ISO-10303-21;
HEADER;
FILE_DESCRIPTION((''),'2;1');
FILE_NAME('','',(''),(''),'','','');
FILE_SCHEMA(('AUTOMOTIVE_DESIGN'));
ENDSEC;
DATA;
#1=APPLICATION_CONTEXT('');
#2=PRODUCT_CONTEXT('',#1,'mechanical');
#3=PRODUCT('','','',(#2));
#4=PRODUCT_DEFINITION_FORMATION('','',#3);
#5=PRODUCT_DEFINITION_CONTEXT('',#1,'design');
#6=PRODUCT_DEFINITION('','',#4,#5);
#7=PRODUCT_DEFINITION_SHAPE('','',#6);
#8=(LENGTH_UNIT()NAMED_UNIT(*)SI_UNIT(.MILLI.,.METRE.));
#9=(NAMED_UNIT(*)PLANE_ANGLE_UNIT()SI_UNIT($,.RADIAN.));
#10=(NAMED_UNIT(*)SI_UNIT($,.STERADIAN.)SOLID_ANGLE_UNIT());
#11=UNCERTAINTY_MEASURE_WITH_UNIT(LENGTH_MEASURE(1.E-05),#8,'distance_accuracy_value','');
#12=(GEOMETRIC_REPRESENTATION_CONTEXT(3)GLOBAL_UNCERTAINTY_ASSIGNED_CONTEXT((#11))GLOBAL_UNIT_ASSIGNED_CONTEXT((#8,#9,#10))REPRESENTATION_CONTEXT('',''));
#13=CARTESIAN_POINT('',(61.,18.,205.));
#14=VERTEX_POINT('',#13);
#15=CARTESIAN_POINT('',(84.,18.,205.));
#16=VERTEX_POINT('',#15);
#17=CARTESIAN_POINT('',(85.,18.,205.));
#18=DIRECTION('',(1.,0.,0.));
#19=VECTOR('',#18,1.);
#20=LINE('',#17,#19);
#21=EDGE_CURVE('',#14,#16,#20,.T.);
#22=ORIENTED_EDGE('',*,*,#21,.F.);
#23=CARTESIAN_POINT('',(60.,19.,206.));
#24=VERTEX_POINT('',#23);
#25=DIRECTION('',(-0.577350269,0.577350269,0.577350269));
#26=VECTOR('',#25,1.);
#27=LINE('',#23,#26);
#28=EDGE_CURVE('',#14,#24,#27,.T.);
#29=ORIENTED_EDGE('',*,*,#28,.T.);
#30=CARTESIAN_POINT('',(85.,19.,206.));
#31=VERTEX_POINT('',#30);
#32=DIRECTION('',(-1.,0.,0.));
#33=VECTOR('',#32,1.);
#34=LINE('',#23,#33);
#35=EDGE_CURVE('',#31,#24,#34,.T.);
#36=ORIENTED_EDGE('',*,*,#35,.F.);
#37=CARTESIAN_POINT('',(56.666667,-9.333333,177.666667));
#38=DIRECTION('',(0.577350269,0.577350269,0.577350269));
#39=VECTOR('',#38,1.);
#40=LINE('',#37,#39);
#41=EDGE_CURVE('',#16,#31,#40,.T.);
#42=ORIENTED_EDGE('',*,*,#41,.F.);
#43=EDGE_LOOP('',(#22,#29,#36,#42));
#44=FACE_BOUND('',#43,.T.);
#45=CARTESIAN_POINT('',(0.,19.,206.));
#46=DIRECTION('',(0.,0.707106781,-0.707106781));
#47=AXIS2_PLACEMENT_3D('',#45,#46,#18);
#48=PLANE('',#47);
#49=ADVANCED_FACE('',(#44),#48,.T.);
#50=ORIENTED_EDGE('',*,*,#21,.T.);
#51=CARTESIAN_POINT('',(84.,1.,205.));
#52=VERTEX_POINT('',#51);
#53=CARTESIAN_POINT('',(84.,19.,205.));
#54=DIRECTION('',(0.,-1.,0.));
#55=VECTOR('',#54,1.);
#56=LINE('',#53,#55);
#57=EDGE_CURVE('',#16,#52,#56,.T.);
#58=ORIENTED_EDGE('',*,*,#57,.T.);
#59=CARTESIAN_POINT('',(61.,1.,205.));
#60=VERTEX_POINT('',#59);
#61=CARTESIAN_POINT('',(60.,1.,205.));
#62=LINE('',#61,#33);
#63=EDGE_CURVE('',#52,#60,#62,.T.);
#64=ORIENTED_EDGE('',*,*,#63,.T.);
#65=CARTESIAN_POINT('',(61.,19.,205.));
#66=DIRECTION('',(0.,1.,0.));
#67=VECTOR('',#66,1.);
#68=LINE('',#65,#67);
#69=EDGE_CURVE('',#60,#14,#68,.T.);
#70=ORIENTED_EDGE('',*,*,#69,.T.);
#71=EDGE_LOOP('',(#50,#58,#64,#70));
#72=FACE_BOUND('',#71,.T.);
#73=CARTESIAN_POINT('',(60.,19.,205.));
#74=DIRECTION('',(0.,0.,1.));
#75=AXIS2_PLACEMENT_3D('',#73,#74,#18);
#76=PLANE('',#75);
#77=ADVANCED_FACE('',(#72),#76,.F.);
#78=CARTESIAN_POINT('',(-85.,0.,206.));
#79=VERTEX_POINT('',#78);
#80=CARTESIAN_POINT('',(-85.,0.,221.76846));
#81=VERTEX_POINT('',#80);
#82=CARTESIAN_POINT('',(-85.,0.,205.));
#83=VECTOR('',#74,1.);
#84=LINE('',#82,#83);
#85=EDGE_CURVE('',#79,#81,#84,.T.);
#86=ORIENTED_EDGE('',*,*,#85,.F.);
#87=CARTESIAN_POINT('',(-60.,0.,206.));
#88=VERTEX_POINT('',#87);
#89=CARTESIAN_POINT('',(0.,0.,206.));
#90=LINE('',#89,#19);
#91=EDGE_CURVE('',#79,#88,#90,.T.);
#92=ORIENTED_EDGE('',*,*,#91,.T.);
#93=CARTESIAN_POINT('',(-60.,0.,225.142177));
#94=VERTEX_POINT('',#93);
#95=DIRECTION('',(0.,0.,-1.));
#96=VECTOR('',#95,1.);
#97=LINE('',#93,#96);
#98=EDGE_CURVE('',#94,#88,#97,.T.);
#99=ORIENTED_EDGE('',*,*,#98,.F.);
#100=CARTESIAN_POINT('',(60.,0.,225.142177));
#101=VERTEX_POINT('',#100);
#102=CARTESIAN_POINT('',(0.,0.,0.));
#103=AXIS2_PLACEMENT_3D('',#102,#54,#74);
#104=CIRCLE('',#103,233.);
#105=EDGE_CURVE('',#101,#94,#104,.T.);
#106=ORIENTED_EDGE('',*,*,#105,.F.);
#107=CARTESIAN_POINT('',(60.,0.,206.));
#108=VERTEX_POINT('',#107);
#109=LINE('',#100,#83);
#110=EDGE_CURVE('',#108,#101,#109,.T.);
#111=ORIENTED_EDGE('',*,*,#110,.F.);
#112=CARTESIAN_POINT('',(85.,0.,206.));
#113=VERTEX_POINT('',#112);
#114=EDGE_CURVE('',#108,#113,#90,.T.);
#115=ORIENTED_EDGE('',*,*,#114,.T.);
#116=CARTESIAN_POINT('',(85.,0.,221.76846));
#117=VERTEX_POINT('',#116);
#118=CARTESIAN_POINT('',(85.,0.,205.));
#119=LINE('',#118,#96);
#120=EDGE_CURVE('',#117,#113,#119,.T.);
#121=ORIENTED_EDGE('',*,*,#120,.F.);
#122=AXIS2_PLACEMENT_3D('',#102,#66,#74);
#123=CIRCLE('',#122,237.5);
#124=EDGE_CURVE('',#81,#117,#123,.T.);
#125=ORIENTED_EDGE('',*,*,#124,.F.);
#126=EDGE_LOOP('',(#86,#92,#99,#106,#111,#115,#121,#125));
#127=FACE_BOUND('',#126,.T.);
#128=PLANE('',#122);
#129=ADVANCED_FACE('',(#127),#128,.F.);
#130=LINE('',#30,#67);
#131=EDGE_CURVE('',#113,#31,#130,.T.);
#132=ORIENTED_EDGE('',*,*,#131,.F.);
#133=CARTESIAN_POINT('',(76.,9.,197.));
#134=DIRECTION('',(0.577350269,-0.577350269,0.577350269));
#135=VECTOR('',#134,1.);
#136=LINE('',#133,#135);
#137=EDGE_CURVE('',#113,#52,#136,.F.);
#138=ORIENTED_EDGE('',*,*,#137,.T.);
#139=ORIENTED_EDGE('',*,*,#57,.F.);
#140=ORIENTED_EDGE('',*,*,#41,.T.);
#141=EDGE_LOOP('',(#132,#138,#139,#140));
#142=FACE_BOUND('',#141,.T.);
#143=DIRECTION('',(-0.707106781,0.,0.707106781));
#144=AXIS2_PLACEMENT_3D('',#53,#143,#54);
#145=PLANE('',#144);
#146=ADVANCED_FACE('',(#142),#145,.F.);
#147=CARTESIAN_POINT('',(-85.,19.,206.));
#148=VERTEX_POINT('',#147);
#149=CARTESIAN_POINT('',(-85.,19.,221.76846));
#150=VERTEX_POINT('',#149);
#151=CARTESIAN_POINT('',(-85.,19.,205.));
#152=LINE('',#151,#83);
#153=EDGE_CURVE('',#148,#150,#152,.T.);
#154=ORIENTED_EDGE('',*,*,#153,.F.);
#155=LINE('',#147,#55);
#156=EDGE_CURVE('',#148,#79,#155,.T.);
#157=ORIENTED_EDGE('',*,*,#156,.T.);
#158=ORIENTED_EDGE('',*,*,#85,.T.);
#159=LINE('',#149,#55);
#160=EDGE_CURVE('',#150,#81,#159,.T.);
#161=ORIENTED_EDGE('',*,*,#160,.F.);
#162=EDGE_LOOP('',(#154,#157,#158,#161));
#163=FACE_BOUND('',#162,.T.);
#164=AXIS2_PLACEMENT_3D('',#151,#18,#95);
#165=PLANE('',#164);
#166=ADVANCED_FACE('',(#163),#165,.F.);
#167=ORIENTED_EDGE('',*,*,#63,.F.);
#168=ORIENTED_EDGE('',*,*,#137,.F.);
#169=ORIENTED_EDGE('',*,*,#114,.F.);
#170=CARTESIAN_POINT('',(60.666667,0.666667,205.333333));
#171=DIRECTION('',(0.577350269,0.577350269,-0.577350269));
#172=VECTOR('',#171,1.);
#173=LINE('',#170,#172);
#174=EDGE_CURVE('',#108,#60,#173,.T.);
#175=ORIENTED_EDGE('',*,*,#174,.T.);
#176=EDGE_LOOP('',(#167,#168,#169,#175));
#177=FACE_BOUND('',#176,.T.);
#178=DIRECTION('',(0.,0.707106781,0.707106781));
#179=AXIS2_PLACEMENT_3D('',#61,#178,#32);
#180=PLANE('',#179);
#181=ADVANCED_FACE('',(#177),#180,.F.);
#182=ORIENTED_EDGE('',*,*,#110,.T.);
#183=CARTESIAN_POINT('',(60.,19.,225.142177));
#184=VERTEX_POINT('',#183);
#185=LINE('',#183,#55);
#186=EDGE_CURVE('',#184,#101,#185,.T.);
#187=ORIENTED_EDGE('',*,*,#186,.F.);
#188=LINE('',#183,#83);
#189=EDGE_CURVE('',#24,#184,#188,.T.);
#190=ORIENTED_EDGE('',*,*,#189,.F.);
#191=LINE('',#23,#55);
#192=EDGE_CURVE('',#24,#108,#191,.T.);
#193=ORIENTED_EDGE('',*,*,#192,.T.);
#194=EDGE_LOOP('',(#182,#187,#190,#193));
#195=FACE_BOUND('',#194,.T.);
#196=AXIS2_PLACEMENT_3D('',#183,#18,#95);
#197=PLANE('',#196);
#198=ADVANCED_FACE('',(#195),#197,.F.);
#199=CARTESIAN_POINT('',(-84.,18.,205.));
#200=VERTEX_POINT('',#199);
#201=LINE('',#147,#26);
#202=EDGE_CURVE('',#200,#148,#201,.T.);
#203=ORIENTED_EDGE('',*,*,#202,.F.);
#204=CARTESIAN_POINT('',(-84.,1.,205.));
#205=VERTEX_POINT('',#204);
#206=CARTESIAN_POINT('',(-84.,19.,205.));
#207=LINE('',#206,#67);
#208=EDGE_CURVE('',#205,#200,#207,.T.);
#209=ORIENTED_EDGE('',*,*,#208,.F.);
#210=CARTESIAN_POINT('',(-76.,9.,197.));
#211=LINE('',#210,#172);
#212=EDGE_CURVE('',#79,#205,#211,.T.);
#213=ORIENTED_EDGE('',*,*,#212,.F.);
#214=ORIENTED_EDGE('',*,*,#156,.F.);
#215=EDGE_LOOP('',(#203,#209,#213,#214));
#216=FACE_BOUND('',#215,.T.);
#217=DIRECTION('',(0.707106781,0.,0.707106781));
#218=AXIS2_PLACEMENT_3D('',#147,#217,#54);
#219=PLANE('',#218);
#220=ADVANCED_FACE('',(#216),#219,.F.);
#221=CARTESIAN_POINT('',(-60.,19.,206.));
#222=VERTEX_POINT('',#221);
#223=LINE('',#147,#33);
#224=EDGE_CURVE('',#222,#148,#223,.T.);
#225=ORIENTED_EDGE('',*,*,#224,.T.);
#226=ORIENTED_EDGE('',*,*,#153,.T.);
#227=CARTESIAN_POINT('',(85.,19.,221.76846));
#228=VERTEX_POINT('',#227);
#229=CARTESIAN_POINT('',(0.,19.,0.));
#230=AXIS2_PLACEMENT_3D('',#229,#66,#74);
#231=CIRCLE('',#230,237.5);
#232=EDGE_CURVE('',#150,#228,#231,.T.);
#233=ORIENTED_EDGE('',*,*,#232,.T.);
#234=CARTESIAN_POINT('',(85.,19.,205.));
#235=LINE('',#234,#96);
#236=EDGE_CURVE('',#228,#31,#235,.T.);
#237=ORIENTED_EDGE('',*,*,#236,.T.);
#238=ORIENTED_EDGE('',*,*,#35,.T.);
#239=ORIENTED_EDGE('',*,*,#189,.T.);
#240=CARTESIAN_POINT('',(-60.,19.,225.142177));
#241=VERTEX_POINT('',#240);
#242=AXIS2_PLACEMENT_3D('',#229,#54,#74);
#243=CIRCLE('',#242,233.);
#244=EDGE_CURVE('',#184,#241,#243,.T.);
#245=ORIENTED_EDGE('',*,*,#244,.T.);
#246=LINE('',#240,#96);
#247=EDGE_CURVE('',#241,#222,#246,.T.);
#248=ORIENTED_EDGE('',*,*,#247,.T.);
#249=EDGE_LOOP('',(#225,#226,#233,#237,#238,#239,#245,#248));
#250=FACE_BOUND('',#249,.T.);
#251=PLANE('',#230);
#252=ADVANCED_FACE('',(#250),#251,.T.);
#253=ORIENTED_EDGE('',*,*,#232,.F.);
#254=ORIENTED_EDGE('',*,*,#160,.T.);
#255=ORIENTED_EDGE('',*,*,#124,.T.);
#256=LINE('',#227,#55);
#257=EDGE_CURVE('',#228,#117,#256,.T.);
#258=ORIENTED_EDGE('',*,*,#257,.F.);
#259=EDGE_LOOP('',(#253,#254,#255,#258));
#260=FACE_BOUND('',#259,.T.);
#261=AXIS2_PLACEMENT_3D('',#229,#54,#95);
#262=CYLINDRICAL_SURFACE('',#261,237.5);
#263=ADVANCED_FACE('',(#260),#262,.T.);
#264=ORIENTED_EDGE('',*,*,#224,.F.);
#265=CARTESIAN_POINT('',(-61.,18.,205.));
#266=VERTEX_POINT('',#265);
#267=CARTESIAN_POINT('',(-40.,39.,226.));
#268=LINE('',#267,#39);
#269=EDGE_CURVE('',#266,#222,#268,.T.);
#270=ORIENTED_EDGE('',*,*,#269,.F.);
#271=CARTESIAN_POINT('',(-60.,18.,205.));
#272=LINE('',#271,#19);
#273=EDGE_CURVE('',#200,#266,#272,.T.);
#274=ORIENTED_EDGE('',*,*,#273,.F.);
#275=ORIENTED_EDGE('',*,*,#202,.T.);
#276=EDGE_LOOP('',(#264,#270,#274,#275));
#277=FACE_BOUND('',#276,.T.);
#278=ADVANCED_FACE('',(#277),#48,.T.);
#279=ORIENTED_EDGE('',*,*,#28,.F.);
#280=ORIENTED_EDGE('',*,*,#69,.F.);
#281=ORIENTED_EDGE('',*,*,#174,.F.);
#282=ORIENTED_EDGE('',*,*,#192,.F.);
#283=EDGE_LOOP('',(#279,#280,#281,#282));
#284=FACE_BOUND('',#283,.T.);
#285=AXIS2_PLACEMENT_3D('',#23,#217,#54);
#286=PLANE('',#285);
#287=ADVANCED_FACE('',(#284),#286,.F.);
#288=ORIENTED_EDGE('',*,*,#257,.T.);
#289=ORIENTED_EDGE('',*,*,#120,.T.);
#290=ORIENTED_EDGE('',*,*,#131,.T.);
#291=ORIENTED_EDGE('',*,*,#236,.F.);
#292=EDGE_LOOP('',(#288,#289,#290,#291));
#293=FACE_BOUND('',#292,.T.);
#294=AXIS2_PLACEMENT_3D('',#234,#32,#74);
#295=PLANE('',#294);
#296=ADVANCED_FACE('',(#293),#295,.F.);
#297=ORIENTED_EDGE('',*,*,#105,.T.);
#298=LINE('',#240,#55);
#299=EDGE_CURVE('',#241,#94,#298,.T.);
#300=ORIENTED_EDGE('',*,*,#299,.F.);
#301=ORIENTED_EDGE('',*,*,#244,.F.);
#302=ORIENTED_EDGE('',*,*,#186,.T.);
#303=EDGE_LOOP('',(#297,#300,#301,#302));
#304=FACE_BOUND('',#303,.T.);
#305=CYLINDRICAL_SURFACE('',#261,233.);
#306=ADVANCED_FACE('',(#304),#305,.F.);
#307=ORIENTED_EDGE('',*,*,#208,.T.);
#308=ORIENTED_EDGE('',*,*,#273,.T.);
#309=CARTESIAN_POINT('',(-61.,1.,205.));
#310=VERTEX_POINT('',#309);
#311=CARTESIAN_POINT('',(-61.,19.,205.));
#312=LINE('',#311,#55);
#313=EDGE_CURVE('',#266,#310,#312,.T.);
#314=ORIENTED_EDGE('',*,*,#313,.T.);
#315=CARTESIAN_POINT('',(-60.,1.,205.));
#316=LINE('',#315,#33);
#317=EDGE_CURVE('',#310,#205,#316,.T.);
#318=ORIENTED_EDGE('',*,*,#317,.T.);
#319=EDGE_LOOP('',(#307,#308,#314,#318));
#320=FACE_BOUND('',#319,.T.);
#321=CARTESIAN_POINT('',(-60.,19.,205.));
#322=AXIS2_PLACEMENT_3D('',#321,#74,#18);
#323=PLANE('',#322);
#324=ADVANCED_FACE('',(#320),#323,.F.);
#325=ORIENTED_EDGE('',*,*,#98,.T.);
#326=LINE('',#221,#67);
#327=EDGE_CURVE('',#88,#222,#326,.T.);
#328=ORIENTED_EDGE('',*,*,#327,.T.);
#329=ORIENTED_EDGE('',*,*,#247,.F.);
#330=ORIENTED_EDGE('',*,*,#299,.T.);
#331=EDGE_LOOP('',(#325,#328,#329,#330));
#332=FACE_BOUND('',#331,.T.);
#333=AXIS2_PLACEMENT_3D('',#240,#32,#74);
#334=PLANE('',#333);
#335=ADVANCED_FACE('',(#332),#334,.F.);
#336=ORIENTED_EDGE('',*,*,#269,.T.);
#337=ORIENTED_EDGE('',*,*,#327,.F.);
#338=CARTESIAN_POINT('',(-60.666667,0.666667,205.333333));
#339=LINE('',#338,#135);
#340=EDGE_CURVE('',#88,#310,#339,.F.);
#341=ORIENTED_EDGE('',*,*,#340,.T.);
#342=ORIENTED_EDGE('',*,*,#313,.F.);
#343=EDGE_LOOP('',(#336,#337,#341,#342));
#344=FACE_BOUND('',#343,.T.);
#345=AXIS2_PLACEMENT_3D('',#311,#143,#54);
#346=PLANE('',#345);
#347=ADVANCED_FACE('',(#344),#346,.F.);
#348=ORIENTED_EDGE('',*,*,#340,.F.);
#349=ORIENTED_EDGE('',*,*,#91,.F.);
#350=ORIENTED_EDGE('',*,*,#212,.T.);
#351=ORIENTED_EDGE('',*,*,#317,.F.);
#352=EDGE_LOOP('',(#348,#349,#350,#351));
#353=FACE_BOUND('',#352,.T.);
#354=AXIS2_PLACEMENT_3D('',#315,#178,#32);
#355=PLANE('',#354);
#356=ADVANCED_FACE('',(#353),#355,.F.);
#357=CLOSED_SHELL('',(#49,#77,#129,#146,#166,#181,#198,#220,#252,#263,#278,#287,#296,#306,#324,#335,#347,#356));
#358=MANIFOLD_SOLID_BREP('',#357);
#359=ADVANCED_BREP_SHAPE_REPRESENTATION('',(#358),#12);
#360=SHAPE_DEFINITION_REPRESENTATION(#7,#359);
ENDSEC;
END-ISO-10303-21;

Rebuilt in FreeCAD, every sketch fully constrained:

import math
import FreeCAD as App
import Part
import Sketcher
from FreeCAD import Vector


def edges_at(feature, points):
    """Names of the edges that pass closest to the given points."""
    edges = feature.Shape.Edges
    near = lambda p: min(range(len(edges)), key=lambda i: edges[i].distToShape(Part.Vertex(*p))[0])
    return sorted({f"Edge{near(p) + 1}" for p in points})

doc = App.newDocument("Part")
body = doc.addObject("PartDesign::Body", "Body")

# Sketch on XZ plane
sketch1 = body.newObject("Sketcher::SketchObject", "Sketch")
sketch1.AttachmentSupport = (doc.getObject("XZ_Plane"), [""])
sketch1.MapMode = "FlatFace"
sketch1.addGeometry(Part.LineSegment(Vector(60, 205, 0), Vector(60, 225, 0)), False)
sketch1.addGeometry(Part.ArcOfCircle(Part.Circle(Vector(0, 0, 0), Vector(0, 0, 1), 233), math.radians(75), math.radians(105)), False)
sketch1.addGeometry(Part.LineSegment(Vector(-60, 225, 0), Vector(-60, 205, 0)), False)
sketch1.addGeometry(Part.LineSegment(Vector(-60, 205, 0), Vector(-85, 205, 0)), False)
sketch1.addGeometry(Part.LineSegment(Vector(-85, 205, 0), Vector(-85, 222, 0)), False)
sketch1.addGeometry(Part.ArcOfCircle(Part.Circle(Vector(0, 0, 0), Vector(0, 0, 1), 237), math.radians(69), math.radians(111)), False)
sketch1.addGeometry(Part.LineSegment(Vector(85, 222, 0), Vector(85, 205, 0)), False)
sketch1.addGeometry(Part.LineSegment(Vector(85, 205, 0), Vector(60, 205, 0)), False)
sketch1.addConstraint(Sketcher.Constraint("Coincident", 0, 2, 1, 1))
sketch1.addConstraint(Sketcher.Constraint("Coincident", 1, 2, 2, 1))
sketch1.addConstraint(Sketcher.Constraint("Coincident", 2, 2, 3, 1))
sketch1.addConstraint(Sketcher.Constraint("Coincident", 3, 2, 4, 1))
sketch1.addConstraint(Sketcher.Constraint("Coincident", 4, 2, 5, 2))
sketch1.addConstraint(Sketcher.Constraint("Coincident", 5, 1, 6, 1))
sketch1.addConstraint(Sketcher.Constraint("Coincident", 6, 2, 7, 1))
sketch1.addConstraint(Sketcher.Constraint("Coincident", 7, 2, 0, 1))
sketch1.addConstraint(Sketcher.Constraint("Vertical", 0))
sketch1.addConstraint(Sketcher.Constraint("Vertical", 2))
sketch1.addConstraint(Sketcher.Constraint("Horizontal", 3))
sketch1.addConstraint(Sketcher.Constraint("Vertical", 4))
sketch1.addConstraint(Sketcher.Constraint("Vertical", 6))
sketch1.addConstraint(Sketcher.Constraint("Horizontal", 7))
sketch1.addConstraint(Sketcher.Constraint("Coincident", 1, 3, -1, 1))
sketch1.addConstraint(Sketcher.Constraint("Coincident", 5, 3, -1, 1))
sketch1.addConstraint(Sketcher.Constraint("Symmetric", 3, 2, 6, 2, -2))
sketch1.addConstraint(Sketcher.Constraint("Horizontal", 0, 2, 1, 2))
sketch1.addConstraint(Sketcher.Constraint("Radius", 1, 233.0))
sketch1.addConstraint(Sketcher.Constraint("Radius", 5, 237.5))
sketch1.addConstraint(Sketcher.Constraint("DistanceX", 3, 2, 3, 1, 25.0))
sketch1.addConstraint(Sketcher.Constraint("DistanceX", -1, 1, 0, 2, 60.0))
sketch1.addConstraint(Sketcher.Constraint("DistanceY", -1, 1, 2, 2, 205.0))
pad1 = body.newObject("PartDesign::Pad", "Pad")
pad1.Profile = sketch1
pad1.Length = 19
pad1.Reversed = True
doc.recompute()

chamfer = body.newObject("PartDesign::Chamfer", "Chamfer")
chamfer.Base = (pad1, edges_at(pad1, [
    (-72.5, 0, 205),
    (-72.5, 19, 205),
    (60, 9.5, 205),
    (85, 9.5, 205),
    (-85, 9.5, 205),
    (-60, 9.5, 205),
    (72.5, 19, 205),
    (72.5, 0, 205),
]))
chamfer.Size = 1

doc.recompute()
